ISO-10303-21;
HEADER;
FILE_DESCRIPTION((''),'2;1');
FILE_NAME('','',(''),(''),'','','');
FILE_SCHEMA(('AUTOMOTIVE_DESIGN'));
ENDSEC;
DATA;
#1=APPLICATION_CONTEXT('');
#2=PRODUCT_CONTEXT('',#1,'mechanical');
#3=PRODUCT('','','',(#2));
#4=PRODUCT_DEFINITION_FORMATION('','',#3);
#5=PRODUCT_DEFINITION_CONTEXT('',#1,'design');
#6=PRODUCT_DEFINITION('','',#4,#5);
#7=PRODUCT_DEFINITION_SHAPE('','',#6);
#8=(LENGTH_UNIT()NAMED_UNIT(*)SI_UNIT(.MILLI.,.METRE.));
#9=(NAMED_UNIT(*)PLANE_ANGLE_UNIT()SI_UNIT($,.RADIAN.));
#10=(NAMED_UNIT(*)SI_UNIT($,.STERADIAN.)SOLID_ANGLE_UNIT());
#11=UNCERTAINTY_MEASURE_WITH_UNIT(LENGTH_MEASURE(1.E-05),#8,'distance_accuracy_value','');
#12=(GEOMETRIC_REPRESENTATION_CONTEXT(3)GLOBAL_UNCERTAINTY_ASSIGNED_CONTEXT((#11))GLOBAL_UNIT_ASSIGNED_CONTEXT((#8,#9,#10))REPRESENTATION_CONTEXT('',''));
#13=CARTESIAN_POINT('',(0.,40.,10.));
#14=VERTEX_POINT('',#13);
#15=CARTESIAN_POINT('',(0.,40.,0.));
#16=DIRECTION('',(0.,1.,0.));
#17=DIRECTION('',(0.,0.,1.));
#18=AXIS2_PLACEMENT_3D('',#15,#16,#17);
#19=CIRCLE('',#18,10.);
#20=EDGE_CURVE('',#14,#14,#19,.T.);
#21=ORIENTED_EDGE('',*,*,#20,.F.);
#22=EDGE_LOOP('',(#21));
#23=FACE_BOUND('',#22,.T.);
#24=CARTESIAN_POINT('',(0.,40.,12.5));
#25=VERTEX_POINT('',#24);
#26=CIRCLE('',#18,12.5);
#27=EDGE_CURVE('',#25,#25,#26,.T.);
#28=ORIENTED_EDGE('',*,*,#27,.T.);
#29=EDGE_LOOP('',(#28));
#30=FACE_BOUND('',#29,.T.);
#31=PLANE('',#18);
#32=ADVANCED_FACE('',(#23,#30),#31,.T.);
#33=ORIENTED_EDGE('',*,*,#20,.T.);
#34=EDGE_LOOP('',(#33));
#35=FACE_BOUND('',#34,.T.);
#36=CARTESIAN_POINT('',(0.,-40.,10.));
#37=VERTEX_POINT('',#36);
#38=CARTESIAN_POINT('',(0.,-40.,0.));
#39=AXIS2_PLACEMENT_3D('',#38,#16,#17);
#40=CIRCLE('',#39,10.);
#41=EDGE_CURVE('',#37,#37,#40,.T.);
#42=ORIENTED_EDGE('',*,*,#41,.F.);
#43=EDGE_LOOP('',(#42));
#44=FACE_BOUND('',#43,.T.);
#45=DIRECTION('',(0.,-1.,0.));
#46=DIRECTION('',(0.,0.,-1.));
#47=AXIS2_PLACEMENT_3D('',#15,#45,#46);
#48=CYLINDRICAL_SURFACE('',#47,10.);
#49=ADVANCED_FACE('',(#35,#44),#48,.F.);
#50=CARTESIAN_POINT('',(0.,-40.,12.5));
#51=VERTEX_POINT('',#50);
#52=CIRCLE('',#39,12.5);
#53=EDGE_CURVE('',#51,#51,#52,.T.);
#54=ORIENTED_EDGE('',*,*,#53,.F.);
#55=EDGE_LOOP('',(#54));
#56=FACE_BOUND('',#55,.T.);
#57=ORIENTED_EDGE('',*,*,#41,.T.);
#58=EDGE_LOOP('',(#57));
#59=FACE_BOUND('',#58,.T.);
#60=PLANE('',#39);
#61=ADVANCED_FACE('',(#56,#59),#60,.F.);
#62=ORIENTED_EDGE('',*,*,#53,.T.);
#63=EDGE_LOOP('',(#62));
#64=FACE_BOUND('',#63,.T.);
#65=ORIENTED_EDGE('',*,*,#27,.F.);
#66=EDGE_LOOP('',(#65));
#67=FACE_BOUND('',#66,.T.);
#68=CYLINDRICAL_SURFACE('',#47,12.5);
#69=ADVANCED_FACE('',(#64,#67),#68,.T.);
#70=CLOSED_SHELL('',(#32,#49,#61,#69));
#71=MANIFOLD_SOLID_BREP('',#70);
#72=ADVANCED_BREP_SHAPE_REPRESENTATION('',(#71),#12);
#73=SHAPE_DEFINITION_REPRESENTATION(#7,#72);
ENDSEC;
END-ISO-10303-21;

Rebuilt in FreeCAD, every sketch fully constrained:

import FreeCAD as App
import Part
import Sketcher

V = App.Vector

doc = App.newDocument("Part")
body = doc.addObject("PartDesign::Body", "Body")

sketch1 = body.newObject("Sketcher::SketchObject", "Sketch")
sketch1.AttachmentSupport = (doc.getObject("XZ_Plane"), [""])
sketch1.MapMode = "FlatFace"
sketch1.addGeometry([
    Part.Circle(V(0, 0, 0), V(0, 0, 1), 12),
    Part.Circle(V(0, 0, 0), V(0, 0, 1), 10),
], False)
sketch1.addConstraint([
    Sketcher.Constraint("Coincident", 0, 3, -1, 1),
    Sketcher.Constraint("Coincident", 1, 3, -1, 1),
    Sketcher.Constraint("Diameter", 0, 25.0),
    Sketcher.Constraint("Diameter", 1, 20.0),
])
pad1 = body.newObject("PartDesign::Pad", "Pad")
pad1.Profile = sketch1
pad1.Length = 80
pad1.Midplane = True

doc.recompute()
